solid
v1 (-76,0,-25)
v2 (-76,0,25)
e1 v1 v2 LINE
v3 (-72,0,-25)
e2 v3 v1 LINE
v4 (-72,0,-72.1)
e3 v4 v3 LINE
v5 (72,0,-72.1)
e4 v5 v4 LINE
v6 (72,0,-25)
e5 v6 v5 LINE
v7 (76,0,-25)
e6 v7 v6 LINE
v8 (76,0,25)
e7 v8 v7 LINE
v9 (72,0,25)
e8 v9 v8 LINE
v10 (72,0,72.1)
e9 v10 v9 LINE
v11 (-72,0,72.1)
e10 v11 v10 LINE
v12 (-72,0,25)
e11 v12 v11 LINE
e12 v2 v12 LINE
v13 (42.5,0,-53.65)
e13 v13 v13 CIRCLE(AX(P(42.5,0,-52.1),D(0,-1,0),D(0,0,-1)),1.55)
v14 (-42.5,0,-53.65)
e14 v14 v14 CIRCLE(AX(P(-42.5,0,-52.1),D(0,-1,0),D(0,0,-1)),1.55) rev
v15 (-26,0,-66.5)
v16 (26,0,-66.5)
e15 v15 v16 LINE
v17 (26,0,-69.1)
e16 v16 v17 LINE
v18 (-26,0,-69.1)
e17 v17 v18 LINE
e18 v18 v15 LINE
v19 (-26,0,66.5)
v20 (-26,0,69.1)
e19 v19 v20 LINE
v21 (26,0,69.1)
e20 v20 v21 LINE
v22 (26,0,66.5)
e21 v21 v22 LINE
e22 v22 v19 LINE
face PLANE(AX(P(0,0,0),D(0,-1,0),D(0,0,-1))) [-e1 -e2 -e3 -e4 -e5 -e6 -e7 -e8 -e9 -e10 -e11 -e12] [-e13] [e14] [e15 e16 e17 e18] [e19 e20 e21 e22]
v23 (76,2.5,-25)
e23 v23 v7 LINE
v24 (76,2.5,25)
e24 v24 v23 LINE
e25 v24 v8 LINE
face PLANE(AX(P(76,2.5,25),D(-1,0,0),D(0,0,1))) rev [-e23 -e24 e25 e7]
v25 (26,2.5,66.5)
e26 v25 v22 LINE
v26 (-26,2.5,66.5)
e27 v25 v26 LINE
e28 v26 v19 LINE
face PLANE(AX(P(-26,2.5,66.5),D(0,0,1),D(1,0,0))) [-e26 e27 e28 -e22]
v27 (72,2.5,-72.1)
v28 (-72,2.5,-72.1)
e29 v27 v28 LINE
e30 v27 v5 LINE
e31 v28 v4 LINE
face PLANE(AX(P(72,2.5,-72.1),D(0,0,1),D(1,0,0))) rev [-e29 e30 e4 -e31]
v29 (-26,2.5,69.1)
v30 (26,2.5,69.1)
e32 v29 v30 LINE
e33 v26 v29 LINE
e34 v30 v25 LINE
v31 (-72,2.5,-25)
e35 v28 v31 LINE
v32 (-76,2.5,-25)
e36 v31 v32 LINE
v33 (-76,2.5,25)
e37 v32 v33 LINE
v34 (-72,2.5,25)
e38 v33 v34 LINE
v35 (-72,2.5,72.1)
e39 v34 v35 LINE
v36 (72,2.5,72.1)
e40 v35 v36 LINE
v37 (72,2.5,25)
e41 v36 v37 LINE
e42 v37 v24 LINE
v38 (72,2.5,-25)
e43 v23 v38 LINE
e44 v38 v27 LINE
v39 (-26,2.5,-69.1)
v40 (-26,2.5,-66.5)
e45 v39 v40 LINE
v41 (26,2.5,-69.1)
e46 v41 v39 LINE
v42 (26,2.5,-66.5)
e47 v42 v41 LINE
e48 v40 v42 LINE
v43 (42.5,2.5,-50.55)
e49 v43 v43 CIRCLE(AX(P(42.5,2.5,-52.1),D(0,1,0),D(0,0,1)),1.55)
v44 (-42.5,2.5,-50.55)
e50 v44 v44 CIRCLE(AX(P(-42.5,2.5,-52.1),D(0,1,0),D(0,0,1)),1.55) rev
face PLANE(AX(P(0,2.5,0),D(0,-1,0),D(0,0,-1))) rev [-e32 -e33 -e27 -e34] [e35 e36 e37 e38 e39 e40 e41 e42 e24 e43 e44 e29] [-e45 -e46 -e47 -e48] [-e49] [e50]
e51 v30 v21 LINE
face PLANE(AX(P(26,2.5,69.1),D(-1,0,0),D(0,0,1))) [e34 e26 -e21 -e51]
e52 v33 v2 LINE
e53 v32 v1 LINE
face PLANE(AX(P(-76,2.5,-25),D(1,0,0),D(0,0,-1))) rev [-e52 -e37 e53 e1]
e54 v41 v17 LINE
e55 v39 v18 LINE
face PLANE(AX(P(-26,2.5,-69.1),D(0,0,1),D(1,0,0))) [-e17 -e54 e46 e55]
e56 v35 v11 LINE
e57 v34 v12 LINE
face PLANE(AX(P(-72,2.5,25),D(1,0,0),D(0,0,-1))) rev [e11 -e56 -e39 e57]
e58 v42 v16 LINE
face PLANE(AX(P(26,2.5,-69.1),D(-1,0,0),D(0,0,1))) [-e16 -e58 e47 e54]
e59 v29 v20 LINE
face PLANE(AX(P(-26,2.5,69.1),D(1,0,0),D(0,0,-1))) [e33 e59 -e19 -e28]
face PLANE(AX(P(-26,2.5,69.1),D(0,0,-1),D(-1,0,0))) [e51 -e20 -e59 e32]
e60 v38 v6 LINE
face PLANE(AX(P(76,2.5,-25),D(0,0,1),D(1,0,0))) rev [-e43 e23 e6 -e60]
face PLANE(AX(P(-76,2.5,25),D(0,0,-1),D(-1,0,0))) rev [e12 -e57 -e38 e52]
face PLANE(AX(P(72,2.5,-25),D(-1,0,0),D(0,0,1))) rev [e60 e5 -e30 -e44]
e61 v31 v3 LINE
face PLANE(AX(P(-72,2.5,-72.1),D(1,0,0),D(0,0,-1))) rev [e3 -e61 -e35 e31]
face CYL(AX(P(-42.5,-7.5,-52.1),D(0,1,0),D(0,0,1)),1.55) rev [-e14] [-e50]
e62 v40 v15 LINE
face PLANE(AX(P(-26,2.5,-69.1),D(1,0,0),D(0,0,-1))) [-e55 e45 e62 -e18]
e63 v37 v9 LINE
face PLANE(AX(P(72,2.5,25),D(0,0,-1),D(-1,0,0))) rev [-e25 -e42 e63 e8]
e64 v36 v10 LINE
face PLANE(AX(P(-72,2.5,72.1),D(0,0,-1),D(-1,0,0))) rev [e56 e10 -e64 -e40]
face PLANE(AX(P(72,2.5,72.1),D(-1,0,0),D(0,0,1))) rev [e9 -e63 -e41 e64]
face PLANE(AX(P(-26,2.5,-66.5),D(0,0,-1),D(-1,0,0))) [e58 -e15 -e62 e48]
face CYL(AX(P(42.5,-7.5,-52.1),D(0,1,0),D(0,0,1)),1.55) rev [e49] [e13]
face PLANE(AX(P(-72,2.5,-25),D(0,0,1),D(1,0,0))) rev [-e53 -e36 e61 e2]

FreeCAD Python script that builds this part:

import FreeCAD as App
import Part
import Sketcher

V = App.Vector
Q = App.Units.Quantity


def add_polygon(sketch, points):
    """Adds a closed chain of lines whose ends are joined by coincident constraints."""
    first, n = sketch.GeometryCount, len(points)
    for a, b in zip(points, points[1:] + points[:1]):
        sketch.addGeometry(Part.LineSegment(App.Vector(*a, 0), App.Vector(*b, 0)), False)
    for i in range(n):
        sketch.addConstraint(Sketcher.Constraint("Coincident", first + i, 2, first + (i + 1) % n, 1))

doc = App.newDocument("Part")
body = doc.addObject("PartDesign::Body", "Body")

# Sketch on XZ plane
sketch1 = body.newObject("Sketcher::SketchObject", "Sketch")
sketch1.AttachmentSupport = (doc.getObject("XZ_Plane"), [""])
sketch1.MapMode = "FlatFace"
add_polygon(sketch1, [(72, 25), (76, 25), (76, -25), (72, -25), (72, -72.1), (-72, -72.1), (-72, -25), (-76, -25), (-76, 25), (-72, 25), (-72, 72.1), (72, 72.1)])  # lines 0-11
add_polygon(sketch1, [(26, 69.1), (-26, 69.1), (-26, 66.5), (26, 66.5)])  # lines 12-15
add_polygon(sketch1, [(26, -66.5), (-26, -66.5), (-26, -69.1), (26, -69.1)])  # lines 16-19
sketch1.addConstraint(Sketcher.Constraint("Horizontal", 0))
sketch1.addConstraint(Sketcher.Constraint("Vertical", 1))
sketch1.addConstraint(Sketcher.Constraint("Horizontal", 2))
sketch1.addConstraint(Sketcher.Constraint("Vertical", 3))
sketch1.addConstraint(Sketcher.Constraint("Horizontal", 4))
sketch1.addConstraint(Sketcher.Constraint("Vertical", 5))
sketch1.addConstraint(Sketcher.Constraint("Horizontal", 6))
sketch1.addConstraint(Sketcher.Constraint("Vertical", 7))
sketch1.addConstraint(Sketcher.Constraint("Horizontal", 8))
sketch1.addConstraint(Sketcher.Constraint("Vertical", 9))
sketch1.addConstraint(Sketcher.Constraint("Horizontal", 10))
sketch1.addConstraint(Sketcher.Constraint("Vertical", 11))
sketch1.addConstraint(Sketcher.Constraint("Horizontal", 12))
sketch1.addConstraint(Sketcher.Constraint("Vertical", 13))
sketch1.addConstraint(Sketcher.Constraint("Horizontal", 14))
sketch1.addConstraint(Sketcher.Constraint("Vertical", 15))
sketch1.addConstraint(Sketcher.Constraint("Horizontal", 16))
sketch1.addConstraint(Sketcher.Constraint("Vertical", 17))
sketch1.addConstraint(Sketcher.Constraint("Horizontal", 18))
sketch1.addConstraint(Sketcher.Constraint("Vertical", 19))
sketch1.addConstraint(Sketcher.Constraint("Symmetric", 0, 2, 6, 2, -1, 1))
sketch1.addConstraint(Sketcher.Constraint("Symmetric", 2, 2, 8, 2, -1, 1))
sketch1.addConstraint(Sketcher.Constraint("Symmetric", 4, 2, 10, 2, -1, 1))
sketch1.addConstraint(Sketcher.Constraint("Symmetric", 14, 2, 16, 2, -1, 1))
sketch1.addConstraint(Sketcher.Constraint("Symmetric", 12, 2, 18, 2, -1, 1))
sketch1.addConstraint(Sketcher.Constraint("Symmetric", 2, 2, 5, 2, -2))
sketch1.addConstraint(Sketcher.Constraint("Vertical", 13, 2, 16, 2))
sketch1.addConstraint(Sketcher.Constraint("DistanceX", 0, 1, 0, 2, Q("4 mm")))
sketch1.addConstraint(Sketcher.Constraint("DistanceX", 4, 2, 4, 1, Q("144 mm")))
sketch1.addConstraint(Sketcher.Constraint("DistanceX", 12, 2, 12, 1, Q("52 mm")))
sketch1.addConstraint(Sketcher.Constraint("DistanceY", 1, 2, 1, 1, Q("50 mm")))
sketch1.addConstraint(Sketcher.Constraint("DistanceY", 3, 2, 3, 1, Q("47.1 mm")))
sketch1.addConstraint(Sketcher.Constraint("DistanceY", 13, 2, 13, 1, Q("2.6 mm")))
sketch1.addConstraint(Sketcher.Constraint("DistanceY", 12, 2, 9, 2, Q("3 mm")))
pad1 = body.newObject("PartDesign::Pad", "Pad")
pad1.Profile = sketch1
pad1.Length = 2.5
pad1.Reversed = True

# Sketch on XZ plane
sketch2 = body.newObject("Sketcher::SketchObject", "Sketch001")
sketch2.AttachmentSupport = (doc.getObject("XZ_Plane"), [""])
sketch2.MapMode = "FlatFace"
sketch2.AttachmentOffset = App.Placement(V(0, 0, -2.5), App.Rotation())
sketch2.addGeometry(Part.Circle(V(-42.5, -52.1, 0), V(0, 0, 1), 1.6), False)
sketch2.addGeometry(Part.Circle(V(42.5, -52.1, 0), V(0, 0, 1), 1.6), False)
sketch2.addConstraint(Sketcher.Constraint("Equal", 0, 1))
sketch2.addConstraint(Sketcher.Constraint("Symmetric", 0, 3, 1, 3, -2))
sketch2.addConstraint(Sketcher.Constraint("Diameter", 0, Q("3.1 mm")))
sketch2.addConstraint(Sketcher.Constraint("DistanceX", 0, 3, 1, 3, Q("85 mm")))
sketch2.addConstraint(Sketcher.Constraint("DistanceY", 0, 3, -1, 1, Q("52.1 mm")))
pocket1 = body.newObject("PartDesign::Pocket", "Pocket")
pocket1.Profile = sketch2
pocket1.Length = 10
pocket1.Reversed = True

doc.recompute()
